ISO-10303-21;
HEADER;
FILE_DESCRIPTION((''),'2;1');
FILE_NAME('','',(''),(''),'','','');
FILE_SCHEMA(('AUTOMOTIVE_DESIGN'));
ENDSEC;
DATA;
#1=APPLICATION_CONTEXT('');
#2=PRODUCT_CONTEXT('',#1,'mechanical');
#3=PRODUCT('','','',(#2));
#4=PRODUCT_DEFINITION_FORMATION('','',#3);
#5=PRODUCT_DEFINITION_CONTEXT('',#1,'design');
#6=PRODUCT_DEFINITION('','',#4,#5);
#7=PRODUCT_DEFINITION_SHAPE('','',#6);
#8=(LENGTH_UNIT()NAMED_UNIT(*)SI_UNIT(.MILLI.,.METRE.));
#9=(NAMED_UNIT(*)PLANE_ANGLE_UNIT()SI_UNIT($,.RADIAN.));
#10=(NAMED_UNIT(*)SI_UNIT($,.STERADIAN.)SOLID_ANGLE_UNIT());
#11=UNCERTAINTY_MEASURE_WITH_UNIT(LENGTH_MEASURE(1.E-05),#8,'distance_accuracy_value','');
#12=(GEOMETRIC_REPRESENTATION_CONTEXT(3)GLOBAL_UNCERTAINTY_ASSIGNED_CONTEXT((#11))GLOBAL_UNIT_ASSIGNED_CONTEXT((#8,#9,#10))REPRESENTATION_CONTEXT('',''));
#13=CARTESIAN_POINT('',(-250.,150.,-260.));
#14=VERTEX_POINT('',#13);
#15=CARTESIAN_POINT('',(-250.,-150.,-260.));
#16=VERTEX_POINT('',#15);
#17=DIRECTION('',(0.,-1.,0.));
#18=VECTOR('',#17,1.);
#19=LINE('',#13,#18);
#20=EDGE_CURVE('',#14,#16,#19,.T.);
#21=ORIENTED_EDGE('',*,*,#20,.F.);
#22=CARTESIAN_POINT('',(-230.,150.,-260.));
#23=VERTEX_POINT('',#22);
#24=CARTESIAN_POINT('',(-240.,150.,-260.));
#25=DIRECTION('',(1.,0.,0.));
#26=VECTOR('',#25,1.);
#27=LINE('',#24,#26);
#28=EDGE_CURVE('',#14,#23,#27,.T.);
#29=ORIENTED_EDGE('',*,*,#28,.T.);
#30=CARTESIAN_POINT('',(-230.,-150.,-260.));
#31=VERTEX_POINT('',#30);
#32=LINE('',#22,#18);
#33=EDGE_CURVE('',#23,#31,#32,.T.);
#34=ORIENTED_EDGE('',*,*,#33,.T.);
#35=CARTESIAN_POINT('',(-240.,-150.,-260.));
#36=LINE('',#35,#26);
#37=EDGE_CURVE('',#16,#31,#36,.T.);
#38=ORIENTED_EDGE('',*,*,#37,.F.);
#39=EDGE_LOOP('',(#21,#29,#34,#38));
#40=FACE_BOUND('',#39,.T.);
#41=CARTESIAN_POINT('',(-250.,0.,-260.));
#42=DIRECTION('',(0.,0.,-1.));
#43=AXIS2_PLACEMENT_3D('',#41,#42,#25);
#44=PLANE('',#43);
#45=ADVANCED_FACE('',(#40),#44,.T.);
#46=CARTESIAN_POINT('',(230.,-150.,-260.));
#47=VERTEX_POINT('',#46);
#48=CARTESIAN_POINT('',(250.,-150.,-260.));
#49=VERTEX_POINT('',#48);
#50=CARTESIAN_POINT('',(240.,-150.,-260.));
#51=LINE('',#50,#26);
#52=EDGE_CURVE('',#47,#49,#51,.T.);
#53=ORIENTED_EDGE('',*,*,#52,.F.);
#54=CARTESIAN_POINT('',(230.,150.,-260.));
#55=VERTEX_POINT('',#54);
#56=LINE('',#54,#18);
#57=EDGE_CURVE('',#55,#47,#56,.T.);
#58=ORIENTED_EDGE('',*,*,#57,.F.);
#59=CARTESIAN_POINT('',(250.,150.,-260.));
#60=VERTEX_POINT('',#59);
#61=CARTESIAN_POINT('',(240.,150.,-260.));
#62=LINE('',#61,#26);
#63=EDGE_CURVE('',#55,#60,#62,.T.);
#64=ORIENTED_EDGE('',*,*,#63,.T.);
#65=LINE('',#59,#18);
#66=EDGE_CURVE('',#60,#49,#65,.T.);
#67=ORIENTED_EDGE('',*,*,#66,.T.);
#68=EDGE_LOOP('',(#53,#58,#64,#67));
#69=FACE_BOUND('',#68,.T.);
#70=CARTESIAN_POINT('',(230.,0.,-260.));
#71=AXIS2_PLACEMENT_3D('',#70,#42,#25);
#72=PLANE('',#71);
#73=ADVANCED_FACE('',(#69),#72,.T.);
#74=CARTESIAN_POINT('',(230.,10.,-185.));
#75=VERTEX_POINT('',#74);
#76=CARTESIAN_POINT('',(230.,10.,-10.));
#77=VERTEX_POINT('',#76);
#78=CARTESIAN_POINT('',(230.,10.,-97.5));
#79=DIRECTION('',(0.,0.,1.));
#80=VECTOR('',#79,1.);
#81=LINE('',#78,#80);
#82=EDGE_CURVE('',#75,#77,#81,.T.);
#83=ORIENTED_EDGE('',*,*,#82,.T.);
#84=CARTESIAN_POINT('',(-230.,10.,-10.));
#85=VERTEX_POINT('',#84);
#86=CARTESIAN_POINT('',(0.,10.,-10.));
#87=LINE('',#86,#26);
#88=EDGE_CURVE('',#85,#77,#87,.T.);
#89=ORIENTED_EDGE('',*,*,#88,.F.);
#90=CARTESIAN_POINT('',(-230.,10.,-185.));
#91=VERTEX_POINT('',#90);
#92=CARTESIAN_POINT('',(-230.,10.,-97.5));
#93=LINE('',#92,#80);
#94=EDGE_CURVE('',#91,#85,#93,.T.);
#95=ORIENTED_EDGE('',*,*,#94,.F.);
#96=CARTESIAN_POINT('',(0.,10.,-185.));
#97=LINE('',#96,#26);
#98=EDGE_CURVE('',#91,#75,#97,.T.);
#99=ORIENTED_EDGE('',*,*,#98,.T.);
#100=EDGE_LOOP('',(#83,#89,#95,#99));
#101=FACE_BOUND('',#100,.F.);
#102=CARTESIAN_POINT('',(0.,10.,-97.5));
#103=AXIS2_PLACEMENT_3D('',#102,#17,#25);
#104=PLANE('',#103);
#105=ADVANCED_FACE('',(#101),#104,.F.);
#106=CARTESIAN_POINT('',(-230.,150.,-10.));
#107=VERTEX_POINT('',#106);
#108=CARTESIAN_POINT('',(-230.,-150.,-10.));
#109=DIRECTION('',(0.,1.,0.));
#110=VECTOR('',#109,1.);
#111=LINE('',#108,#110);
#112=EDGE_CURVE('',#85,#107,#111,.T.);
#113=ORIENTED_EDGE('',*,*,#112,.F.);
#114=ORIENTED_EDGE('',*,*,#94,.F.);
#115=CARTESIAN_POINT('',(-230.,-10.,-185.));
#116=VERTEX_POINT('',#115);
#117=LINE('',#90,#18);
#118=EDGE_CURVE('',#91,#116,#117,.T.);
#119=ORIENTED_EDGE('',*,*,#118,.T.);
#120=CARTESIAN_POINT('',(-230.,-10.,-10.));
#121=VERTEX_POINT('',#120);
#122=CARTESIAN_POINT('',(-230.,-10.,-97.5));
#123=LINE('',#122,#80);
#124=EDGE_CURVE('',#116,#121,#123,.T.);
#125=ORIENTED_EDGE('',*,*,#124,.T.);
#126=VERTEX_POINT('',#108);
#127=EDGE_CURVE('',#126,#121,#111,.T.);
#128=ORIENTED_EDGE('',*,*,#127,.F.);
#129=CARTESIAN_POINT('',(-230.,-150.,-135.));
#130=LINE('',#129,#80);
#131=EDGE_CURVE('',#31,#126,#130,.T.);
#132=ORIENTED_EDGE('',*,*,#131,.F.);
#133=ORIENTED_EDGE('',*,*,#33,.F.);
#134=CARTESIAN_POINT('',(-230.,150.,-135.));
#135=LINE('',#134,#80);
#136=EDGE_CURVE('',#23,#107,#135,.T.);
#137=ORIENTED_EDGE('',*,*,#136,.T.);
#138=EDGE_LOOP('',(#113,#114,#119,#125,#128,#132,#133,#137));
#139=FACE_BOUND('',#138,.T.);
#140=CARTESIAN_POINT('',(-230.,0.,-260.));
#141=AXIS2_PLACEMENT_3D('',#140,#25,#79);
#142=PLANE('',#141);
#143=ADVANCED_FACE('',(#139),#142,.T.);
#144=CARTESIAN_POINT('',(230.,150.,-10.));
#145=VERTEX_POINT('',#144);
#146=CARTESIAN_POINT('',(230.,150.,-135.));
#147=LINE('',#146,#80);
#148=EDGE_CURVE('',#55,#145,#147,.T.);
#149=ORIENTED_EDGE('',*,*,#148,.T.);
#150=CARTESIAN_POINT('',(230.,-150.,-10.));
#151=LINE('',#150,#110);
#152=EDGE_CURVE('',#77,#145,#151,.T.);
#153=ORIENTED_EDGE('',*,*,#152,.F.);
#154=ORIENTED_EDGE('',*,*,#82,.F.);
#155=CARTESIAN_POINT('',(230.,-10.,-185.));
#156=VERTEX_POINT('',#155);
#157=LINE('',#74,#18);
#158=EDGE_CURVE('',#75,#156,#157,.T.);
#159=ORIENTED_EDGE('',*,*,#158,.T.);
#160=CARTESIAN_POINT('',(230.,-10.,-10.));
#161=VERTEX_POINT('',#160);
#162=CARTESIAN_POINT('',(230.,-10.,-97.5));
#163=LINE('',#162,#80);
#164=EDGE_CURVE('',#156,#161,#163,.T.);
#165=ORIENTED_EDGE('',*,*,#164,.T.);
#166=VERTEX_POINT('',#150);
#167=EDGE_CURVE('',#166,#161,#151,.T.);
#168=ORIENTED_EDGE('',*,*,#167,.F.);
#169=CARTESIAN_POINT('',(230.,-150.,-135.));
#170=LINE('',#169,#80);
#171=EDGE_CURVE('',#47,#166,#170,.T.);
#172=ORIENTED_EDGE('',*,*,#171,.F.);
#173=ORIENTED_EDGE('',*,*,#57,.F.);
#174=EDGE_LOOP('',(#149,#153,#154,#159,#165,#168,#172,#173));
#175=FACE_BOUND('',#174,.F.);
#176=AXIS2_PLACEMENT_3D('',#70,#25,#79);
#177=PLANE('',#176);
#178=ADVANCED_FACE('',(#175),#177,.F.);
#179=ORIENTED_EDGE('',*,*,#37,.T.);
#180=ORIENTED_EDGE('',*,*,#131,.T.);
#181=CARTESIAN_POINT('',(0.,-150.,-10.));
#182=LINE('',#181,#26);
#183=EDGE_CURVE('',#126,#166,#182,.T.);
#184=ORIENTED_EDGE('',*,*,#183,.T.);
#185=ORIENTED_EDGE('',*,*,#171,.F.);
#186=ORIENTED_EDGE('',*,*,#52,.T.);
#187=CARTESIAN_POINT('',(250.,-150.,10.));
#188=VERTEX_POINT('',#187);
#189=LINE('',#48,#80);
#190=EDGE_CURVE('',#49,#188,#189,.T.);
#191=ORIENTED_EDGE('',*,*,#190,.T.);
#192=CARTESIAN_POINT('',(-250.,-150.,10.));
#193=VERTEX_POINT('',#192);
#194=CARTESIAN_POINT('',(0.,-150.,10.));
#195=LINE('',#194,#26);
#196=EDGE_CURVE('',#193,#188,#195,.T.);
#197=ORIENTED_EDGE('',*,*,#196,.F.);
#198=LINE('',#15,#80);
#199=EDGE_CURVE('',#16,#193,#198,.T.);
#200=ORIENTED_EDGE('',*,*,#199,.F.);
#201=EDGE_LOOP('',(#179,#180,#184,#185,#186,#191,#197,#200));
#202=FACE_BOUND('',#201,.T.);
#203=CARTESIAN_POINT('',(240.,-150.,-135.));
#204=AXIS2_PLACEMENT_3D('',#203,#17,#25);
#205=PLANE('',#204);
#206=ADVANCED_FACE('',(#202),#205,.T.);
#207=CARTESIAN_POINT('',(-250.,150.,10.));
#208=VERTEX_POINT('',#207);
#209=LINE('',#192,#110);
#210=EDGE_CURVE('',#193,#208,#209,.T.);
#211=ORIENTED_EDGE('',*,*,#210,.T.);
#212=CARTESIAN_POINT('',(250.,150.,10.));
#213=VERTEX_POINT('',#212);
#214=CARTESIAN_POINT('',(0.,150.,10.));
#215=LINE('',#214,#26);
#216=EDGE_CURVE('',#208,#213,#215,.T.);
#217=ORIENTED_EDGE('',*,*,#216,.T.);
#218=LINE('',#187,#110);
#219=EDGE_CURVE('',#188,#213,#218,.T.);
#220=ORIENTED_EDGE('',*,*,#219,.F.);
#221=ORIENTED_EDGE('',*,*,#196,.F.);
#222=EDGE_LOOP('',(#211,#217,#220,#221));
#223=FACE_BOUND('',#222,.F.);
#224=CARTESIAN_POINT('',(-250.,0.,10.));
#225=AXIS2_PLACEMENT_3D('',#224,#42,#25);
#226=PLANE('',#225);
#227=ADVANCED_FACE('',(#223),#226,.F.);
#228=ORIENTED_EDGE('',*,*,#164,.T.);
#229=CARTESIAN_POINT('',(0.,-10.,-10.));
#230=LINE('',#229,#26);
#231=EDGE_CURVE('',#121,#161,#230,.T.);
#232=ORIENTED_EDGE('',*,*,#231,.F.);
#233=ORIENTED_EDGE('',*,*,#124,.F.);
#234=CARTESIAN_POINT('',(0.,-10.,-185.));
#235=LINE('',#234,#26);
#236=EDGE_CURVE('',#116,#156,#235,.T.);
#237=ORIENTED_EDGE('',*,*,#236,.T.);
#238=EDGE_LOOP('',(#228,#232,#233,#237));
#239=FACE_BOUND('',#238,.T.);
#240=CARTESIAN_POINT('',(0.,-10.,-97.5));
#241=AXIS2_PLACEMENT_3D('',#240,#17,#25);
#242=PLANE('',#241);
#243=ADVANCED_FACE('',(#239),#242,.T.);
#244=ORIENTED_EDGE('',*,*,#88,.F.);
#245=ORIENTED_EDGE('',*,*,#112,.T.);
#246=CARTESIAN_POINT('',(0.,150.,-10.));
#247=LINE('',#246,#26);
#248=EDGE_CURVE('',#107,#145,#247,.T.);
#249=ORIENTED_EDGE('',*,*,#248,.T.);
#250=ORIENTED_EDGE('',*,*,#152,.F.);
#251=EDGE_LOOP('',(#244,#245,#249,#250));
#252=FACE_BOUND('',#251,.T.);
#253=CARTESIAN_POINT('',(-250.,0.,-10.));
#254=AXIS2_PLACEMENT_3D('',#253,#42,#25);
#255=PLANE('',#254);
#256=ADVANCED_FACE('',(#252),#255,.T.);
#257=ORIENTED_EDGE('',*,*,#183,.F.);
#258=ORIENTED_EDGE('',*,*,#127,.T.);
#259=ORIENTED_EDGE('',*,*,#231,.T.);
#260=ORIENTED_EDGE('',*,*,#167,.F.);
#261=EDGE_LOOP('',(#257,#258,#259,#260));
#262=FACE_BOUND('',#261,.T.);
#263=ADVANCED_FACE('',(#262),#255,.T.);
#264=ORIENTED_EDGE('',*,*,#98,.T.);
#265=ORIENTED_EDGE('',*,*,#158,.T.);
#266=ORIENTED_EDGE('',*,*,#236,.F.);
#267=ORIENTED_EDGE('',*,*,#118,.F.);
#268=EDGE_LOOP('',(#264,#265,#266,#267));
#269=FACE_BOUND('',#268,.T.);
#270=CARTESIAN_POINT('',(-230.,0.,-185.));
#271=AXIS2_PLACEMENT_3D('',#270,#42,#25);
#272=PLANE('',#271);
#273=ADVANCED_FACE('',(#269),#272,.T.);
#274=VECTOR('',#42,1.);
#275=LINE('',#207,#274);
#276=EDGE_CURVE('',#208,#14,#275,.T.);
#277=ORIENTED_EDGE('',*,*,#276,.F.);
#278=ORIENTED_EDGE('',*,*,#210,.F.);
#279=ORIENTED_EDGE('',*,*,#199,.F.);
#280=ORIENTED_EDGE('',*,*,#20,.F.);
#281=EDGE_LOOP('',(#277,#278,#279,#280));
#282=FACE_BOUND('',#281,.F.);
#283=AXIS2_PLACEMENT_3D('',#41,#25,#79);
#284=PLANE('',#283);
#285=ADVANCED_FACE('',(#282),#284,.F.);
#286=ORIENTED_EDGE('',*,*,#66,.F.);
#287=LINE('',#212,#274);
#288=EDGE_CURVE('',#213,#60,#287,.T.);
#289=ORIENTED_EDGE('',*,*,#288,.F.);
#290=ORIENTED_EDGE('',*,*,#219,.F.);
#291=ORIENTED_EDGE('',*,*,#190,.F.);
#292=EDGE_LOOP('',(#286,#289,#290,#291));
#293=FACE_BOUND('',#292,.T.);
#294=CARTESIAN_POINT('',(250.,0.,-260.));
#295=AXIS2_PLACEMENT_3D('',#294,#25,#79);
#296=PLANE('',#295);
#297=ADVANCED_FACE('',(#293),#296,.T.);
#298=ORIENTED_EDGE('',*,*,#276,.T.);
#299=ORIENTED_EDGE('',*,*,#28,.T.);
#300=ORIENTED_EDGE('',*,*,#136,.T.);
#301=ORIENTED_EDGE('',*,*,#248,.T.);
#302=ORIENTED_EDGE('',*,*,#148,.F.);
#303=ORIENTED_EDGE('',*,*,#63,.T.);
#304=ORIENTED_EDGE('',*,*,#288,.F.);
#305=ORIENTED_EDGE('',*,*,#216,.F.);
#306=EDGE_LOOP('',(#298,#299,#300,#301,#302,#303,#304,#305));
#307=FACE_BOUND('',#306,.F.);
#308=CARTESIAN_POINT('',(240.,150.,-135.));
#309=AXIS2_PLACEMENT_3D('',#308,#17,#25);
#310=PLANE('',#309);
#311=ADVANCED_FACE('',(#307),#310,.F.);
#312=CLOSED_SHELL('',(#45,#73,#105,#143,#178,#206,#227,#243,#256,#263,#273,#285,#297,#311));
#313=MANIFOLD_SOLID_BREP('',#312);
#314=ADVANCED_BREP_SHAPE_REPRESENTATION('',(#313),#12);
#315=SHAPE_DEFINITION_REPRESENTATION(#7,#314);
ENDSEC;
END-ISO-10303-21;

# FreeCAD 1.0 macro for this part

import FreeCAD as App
import Part
import Sketcher
from FreeCAD import Vector

doc = App.newDocument("Part")
body = doc.addObject("PartDesign::Body", "Body")

sketch1 = body.newObject("Sketcher::SketchObject", "Sketch")
sketch1.AttachmentSupport = (doc.getObject("XZ_Plane"), [""])
sketch1.MapMode = "FlatFace"
sketch1.addGeometry([
    Part.LineSegment(Vector(-250, 10, 0), Vector(-250, -10, 0)),
    Part.LineSegment(Vector(-250, -10, 0), Vector(250, -10, 0)),
    Part.LineSegment(Vector(250, -10, 0), Vector(250, 10, 0)),
    Part.LineSegment(Vector(250, 10, 0), Vector(-250, 10, 0)),
], False)
sketch1.addConstraint([
    Sketcher.Constraint("Coincident", 0, 2, 1, 1),
    Sketcher.Constraint("Coincident", 1, 2, 2, 1),
    Sketcher.Constraint("Coincident", 2, 2, 3, 1),
    Sketcher.Constraint("Coincident", 3, 2, 0, 1),
    Sketcher.Constraint("Vertical", 0),
    Sketcher.Constraint("Horizontal", 1),
    Sketcher.Constraint("Vertical", 2),
    Sketcher.Constraint("Horizontal", 3),
    Sketcher.Constraint("Symmetric", 0, 2, 2, 2, -1, 1),
    Sketcher.Constraint("DistanceX", 1, 1, 1, 2, 500.0),
    Sketcher.Constraint("DistanceY", 0, 2, 0, 1, 20.0),
])
pad1 = body.newObject("PartDesign::Pad", "Pad")
pad1.Profile = sketch1
pad1.Length = 300
pad1.Midplane = True

sketch2 = body.newObject("Sketcher::SketchObject", "Sketch001")
sketch2.AttachmentSupport = (doc.getObject("XZ_Plane"), [""])
sketch2.MapMode = "FlatFace"
sketch2.addGeometry([
    Part.LineSegment(Vector(-250, -10, 0), Vector(-250, -260, 0)),
    Part.LineSegment(Vector(-250, -260, 0), Vector(-230, -260, 0)),
    Part.LineSegment(Vector(-230, -260, 0), Vector(-230, -10, 0)),
    Part.LineSegment(Vector(-230, -10, 0), Vector(-250, -10, 0)),
], False)
sketch2.addConstraint([
    Sketcher.Constraint("Coincident", 0, 2, 1, 1),
    Sketcher.Constraint("Coincident", 1, 2, 2, 1),
    Sketcher.Constraint("Coincident", 2, 2, 3, 1),
    Sketcher.Constraint("Coincident", 3, 2, 0, 1),
    Sketcher.Constraint("Vertical", 0),
    Sketcher.Constraint("Horizontal", 1),
    Sketcher.Constraint("Vertical", 2),
    Sketcher.Constraint("Horizontal", 3),
    Sketcher.Constraint("DistanceX", 1, 1, 1, 2, 20.0),
    Sketcher.Constraint("DistanceY", 0, 2, 0, 1, 250.0),
    Sketcher.Constraint("DistanceX", 0, 2, -1, 1, 250.0),
    Sketcher.Constraint("DistanceY", 0, 2, -1, 1, 260.0),
])
pad2 = body.newObject("PartDesign::Pad", "Pad001")
pad2.Profile = sketch2
pad2.Length = 300
pad2.Midplane = True

sketch3 = body.newObject("Sketcher::SketchObject", "Sketch002")
sketch3.AttachmentSupport = (doc.getObject("XZ_Plane"), [""])
sketch3.MapMode = "FlatFace"
sketch3.addGeometry([
    Part.LineSegment(Vector(230, -10, 0), Vector(230, -260, 0)),
    Part.LineSegment(Vector(230, -260, 0), Vector(250, -260, 0)),
    Part.LineSegment(Vector(250, -260, 0), Vector(250, -10, 0)),
    Part.LineSegment(Vector(250, -10, 0), Vector(230, -10, 0)),
], False)
sketch3.addConstraint([
    Sketcher.Constraint("Coincident", 0, 2, 1, 1),
    Sketcher.Constraint("Coincident", 1, 2, 2, 1),
    Sketcher.Constraint("Coincident", 2, 2, 3, 1),
    Sketcher.Constraint("Coincident", 3, 2, 0, 1),
    Sketcher.Constraint("Vertical", 0),
    Sketcher.Constraint("Horizontal", 1),
    Sketcher.Constraint("Vertical", 2),
    Sketcher.Constraint("Horizontal", 3),
    Sketcher.Constraint("DistanceX", 1, 1, 1, 2, 20.0),
    Sketcher.Constraint("DistanceY", 0, 2, 0, 1, 250.0),
    Sketcher.Constraint("DistanceX", -1, 1, 0, 2, 230.0),
    Sketcher.Constraint("DistanceY", 0, 2, -1, 1, 260.0),
])
pad3 = body.newObject("PartDesign::Pad", "Pad002")
pad3.Profile = sketch3
pad3.Length = 300
pad3.Midplane = True

sketch4 = body.newObject("Sketcher::SketchObject", "Sketch003")
sketch4.AttachmentSupport = (doc.getObject("XZ_Plane"), [""])
sketch4.MapMode = "FlatFace"
sketch4.addGeometry([
    Part.LineSegment(Vector(-230, -10, 0), Vector(-230, -185, 0)),
    Part.LineSegment(Vector(-230, -185, 0), Vector(230, -185, 0)),
    Part.LineSegment(Vector(230, -185, 0), Vector(230, -10, 0)),
    Part.LineSegment(Vector(230, -10, 0), Vector(-230, -10, 0)),
], False)
sketch4.addConstraint([
    Sketcher.Constraint("Coincident", 0, 2, 1, 1),
    Sketcher.Constraint("Coincident", 1, 2, 2, 1),
    Sketcher.Constraint("Coincident", 2, 2, 3, 1),
    Sketcher.Constraint("Coincident", 3, 2, 0, 1),
    Sketcher.Constraint("Vertical", 0),
    Sketcher.Constraint("Horizontal", 1),
    Sketcher.Constraint("Vertical", 2),
    Sketcher.Constraint("Horizontal", 3),
    Sketcher.Constraint("DistanceX", 1, 1, 1, 2, 460.0),
    Sketcher.Constraint("DistanceY", 0, 2, 0, 1, 175.0),
    Sketcher.Constraint("DistanceX", 0, 2, -1, 1, 230.0),
    Sketcher.Constraint("DistanceY", 0, 2, -1, 1, 185.0),
])
pad4 = body.newObject("PartDesign::Pad", "Pad003")
pad4.Profile = sketch4
pad4.Length = 20
pad4.Midplane = True

doc.recompute()
